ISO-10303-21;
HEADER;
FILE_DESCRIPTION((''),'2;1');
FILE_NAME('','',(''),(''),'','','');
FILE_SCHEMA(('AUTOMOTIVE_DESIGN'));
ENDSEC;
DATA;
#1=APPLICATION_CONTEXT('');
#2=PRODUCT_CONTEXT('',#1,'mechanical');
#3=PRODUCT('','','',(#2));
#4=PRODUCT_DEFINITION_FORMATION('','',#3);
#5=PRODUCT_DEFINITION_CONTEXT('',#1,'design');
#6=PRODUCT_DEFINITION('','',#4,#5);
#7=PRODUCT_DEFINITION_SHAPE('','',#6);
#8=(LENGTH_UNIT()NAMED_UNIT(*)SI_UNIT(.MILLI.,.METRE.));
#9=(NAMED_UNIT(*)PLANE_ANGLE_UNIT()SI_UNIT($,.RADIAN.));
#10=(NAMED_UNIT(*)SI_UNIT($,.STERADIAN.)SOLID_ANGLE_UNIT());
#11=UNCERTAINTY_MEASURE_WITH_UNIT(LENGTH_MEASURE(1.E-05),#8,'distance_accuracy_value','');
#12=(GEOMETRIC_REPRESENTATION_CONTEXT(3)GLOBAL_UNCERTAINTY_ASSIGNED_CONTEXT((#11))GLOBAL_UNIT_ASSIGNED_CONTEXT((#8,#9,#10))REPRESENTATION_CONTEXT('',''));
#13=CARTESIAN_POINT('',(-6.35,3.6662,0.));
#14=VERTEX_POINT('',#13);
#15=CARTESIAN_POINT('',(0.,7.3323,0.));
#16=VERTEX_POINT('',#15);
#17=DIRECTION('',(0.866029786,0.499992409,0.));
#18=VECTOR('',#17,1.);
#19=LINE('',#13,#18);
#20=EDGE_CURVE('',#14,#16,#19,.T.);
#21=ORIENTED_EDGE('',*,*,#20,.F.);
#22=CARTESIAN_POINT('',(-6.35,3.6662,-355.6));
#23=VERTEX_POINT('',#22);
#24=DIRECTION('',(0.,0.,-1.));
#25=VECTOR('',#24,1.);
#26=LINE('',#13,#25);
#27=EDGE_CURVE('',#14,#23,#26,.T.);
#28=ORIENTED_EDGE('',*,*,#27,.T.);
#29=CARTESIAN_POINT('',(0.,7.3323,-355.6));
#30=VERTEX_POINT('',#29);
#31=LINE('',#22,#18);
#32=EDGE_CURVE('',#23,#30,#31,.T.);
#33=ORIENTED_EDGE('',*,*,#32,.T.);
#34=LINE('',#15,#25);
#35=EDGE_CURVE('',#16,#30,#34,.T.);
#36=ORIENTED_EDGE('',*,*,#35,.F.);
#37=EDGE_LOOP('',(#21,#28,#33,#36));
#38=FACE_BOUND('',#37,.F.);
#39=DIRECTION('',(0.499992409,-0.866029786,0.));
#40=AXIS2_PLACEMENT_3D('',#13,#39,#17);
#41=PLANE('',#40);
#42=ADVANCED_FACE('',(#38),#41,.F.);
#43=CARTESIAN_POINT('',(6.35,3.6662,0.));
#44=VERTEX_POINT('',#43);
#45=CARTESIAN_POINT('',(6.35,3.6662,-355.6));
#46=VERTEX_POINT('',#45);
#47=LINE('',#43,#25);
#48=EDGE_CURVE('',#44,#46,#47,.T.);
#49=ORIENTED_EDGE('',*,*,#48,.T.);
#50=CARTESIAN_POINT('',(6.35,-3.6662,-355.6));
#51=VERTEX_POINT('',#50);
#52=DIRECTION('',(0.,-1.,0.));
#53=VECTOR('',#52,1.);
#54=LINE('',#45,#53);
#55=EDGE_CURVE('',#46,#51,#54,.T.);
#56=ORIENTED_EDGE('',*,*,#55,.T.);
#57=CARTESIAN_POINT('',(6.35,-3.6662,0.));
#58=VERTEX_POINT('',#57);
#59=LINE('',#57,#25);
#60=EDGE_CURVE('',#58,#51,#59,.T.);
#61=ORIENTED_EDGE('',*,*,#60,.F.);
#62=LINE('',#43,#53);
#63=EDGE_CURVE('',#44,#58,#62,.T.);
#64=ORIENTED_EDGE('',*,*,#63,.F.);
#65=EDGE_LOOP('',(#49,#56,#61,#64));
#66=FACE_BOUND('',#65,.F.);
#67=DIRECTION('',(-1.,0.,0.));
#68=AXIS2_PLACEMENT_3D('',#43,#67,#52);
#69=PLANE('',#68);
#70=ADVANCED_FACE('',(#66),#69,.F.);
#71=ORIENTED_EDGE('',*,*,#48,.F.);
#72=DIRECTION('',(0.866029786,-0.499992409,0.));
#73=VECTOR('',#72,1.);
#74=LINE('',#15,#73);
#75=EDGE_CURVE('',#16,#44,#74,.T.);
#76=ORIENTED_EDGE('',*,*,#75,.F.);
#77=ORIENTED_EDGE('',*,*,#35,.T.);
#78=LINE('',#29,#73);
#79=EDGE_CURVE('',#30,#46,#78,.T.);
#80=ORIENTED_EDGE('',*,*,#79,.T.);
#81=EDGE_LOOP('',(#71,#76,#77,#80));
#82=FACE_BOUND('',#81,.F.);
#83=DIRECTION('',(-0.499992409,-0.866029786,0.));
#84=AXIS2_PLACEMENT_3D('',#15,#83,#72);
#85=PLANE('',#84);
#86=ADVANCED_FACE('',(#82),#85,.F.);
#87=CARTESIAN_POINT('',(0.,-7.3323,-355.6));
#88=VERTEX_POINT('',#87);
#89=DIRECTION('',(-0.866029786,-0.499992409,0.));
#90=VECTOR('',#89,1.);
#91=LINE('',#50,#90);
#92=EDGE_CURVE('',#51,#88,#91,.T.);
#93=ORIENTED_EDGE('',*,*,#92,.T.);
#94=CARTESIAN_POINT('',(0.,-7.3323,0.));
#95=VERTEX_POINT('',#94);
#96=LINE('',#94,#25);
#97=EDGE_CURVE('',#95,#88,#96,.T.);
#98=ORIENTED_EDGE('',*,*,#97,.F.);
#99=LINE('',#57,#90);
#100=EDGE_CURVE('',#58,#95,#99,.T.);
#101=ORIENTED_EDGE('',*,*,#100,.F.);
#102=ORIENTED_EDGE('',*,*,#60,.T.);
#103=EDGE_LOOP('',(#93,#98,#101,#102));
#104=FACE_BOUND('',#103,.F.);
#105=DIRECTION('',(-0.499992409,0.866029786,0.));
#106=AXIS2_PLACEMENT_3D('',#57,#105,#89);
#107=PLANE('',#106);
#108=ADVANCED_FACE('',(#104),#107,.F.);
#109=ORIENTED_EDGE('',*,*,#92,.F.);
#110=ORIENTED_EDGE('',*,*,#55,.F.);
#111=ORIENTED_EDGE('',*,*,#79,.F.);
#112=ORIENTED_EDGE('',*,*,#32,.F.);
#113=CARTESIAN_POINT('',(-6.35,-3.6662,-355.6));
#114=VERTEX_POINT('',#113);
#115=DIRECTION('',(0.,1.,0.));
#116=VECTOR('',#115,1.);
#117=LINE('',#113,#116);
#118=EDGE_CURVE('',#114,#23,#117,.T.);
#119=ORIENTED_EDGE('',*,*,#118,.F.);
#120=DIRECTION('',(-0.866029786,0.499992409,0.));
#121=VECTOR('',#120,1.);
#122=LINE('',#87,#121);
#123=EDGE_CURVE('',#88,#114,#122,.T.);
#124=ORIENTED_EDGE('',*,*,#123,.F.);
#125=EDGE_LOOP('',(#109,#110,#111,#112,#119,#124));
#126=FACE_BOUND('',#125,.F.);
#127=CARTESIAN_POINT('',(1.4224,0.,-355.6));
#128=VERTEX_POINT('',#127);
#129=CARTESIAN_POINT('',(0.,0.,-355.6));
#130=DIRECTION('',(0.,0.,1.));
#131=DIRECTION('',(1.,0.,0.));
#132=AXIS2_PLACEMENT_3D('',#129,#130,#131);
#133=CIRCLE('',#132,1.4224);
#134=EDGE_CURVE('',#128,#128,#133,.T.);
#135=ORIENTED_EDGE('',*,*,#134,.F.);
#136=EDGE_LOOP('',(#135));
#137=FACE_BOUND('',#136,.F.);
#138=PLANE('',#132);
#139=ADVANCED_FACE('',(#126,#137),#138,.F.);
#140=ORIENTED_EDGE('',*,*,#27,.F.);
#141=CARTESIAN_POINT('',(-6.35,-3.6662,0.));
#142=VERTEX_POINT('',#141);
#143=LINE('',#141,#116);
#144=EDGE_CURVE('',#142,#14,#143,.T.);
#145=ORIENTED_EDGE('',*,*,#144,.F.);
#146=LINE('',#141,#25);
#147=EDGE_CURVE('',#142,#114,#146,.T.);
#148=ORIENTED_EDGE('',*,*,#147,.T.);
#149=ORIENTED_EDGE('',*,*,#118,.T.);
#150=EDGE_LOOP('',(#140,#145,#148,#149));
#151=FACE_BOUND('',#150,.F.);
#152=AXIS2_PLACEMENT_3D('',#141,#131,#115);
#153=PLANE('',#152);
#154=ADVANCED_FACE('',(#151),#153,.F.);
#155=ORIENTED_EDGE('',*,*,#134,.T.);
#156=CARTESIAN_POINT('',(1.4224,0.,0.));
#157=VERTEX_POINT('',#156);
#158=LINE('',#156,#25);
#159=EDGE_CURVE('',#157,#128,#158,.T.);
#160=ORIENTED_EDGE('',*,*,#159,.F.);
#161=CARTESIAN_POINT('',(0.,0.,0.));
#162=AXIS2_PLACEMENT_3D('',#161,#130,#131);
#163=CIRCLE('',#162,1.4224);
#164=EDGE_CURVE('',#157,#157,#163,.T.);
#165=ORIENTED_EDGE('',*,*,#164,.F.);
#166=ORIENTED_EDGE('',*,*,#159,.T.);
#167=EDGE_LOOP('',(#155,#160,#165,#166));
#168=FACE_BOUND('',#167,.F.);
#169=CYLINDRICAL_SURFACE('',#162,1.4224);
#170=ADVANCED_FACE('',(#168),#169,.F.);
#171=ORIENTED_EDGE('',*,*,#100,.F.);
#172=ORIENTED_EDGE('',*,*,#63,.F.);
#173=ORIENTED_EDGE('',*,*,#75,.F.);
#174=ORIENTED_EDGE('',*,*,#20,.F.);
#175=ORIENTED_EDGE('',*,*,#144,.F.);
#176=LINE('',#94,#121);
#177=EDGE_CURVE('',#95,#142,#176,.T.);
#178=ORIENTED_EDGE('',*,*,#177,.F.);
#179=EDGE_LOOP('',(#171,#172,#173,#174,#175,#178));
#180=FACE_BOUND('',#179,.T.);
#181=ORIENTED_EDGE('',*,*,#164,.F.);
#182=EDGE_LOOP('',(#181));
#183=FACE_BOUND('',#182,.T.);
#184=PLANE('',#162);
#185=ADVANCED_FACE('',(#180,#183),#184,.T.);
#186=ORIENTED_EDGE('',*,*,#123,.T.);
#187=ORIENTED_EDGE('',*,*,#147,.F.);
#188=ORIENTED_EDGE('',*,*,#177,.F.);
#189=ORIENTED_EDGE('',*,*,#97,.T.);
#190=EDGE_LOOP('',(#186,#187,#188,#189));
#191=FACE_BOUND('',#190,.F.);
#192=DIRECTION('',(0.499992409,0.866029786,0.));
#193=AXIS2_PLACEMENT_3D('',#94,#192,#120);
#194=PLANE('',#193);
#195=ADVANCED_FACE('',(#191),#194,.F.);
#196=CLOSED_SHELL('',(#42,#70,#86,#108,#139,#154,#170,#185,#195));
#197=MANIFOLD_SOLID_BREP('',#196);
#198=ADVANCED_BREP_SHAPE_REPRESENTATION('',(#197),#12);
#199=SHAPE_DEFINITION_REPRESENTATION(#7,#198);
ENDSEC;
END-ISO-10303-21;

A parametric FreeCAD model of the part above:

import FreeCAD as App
import Part
import Sketcher

V = App.Vector
Q = App.Units.Quantity


def add_polygon(sketch, points):
    """Adds a closed chain of lines whose ends are joined by coincident constraints."""
    first, n = sketch.GeometryCount, len(points)
    for a, b in zip(points, points[1:] + points[:1]):
        sketch.addGeometry(Part.LineSegment(App.Vector(*a, 0), App.Vector(*b, 0)), False)
    for i in range(n):
        sketch.addConstraint(Sketcher.Constraint("Coincident", first + i, 2, first + (i + 1) % n, 1))

doc = App.newDocument("Part")
params = doc.addObject("Spreadsheet::Sheet", "Params")
for row, (alias, value) in enumerate([
    ("sketch1_diameter", "0.112 in"),
    ("pad1_length", "14 in"),
], start=1):
    params.set(f"A{row}", alias)
    params.set(f"B{row}", "=" + value)
    params.setAlias(f"B{row}", alias)

body = doc.addObject("PartDesign::Body", "Body")

# Sketch on XY plane
sketch1 = body.newObject("Sketcher::SketchObject", "Sketch")
sketch1.AttachmentSupport = (doc.getObject("XY_Plane"), [""])
sketch1.MapMode = "FlatFace"
add_polygon(sketch1, [(6.35, -3.6662), (6.35, 3.6662), (0, 7.3323), (-6.35, 3.6662), (-6.35, -3.6662), (0, -7.3323)])  # lines 0-5
sketch1.addGeometry(Part.Circle(V(0, 0, 0), V(0, 0, 1), 1.4224), False)  # 6
sketch1.addConstraint([
    Sketcher.Constraint("Vertical", 0),
    Sketcher.Constraint("Vertical", 3),
    Sketcher.Constraint("Coincident", 6, 3, -1, 1),
    Sketcher.Constraint("Symmetric", 0, 2, 3, 2, -1, 1),
    Sketcher.Constraint("Symmetric", 1, 2, 4, 2, -1, 1),
    Sketcher.Constraint("PointOnObject", 1, 2, -2),
    Sketcher.Constraint("Parallel", 2, 5),
    Sketcher.Constraint("Horizontal", 0, 2, 2, 2),
    Sketcher.Constraint("Diameter", 6, Q("0.112 in")),
    Sketcher.Constraint("DistanceX", 2, 2, 0, 2, Q("0.5 in")),
    Sketcher.Constraint("Angle", 1, Q("150.0005 deg")),
    Sketcher.Constraint("DistanceY", 3, 2, 1, 2, Q("0.433 in")),
])
sketch1.setExpression("Constraints[14]", "Params.sketch1_diameter")
pad1 = body.newObject("PartDesign::Pad", "Pad")
pad1.Profile = sketch1
pad1.setExpression("Length", "Params.pad1_length")
pad1.Reversed = True

doc.recompute()
